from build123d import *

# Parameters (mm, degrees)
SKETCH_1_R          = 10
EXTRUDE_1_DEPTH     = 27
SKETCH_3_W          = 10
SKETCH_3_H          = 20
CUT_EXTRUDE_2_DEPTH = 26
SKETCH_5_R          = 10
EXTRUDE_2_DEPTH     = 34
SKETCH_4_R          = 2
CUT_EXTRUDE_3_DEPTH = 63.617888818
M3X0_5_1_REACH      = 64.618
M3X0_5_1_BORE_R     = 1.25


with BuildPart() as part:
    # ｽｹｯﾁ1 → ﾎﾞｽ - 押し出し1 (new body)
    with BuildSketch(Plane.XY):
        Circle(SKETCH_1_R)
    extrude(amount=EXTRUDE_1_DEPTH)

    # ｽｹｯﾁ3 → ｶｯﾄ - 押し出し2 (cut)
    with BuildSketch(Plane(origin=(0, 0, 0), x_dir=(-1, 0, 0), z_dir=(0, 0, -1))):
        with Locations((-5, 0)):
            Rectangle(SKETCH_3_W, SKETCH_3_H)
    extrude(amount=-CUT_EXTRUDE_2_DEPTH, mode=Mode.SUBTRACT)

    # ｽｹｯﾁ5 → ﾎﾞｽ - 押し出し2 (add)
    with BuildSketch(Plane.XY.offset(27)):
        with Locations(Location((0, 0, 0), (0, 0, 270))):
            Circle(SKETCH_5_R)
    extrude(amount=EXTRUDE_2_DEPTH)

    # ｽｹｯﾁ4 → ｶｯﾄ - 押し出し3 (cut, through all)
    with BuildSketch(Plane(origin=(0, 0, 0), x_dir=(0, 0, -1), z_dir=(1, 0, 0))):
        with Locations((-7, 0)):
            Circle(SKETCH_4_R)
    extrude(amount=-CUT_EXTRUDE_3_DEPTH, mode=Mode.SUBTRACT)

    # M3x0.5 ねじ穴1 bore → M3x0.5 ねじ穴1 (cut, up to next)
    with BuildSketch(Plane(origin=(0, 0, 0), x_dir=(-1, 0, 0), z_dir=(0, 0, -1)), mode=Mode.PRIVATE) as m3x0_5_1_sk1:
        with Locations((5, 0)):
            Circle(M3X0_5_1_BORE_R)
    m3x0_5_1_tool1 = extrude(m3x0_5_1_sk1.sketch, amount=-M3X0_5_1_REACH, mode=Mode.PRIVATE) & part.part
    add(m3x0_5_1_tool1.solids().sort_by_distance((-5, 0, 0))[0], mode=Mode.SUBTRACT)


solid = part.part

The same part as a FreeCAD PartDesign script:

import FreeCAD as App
import Part
import Sketcher
from FreeCAD import Vector
Q = App.Units.Quantity


def add_polygon(sketch, points):
    """Adds a closed chain of lines whose ends are joined by coincident constraints."""
    first, n = sketch.GeometryCount, len(points)
    for a, b in zip(points, points[1:] + points[:1]):
        sketch.addGeometry(Part.LineSegment(App.Vector(*a, 0), App.Vector(*b, 0)), False)
    for i in range(n):
        sketch.addConstraint(Sketcher.Constraint("Coincident", first + i, 2, first + (i + 1) % n, 1))

doc = App.newDocument("Part")
body = doc.addObject("PartDesign::Body", "Body")

sketch1 = body.newObject("Sketcher::SketchObject", "Sketch")
sketch1.AttachmentSupport = (doc.getObject("XY_Plane"), [""])
sketch1.MapMode = "FlatFace"
sketch1.addGeometry(Part.Circle(Vector(0, 0, 0), Vector(0, 0, 1), 10), False)
sketch1.addConstraint(Sketcher.Constraint("Coincident", 0, 3, -1, 1))
sketch1.addConstraint(Sketcher.Constraint("Diameter", 0, Q("20 mm")))
pad1 = body.newObject("PartDesign::Pad", "Pad")
pad1.Profile = sketch1
pad1.Length = 27

sketch2 = body.newObject("Sketcher::SketchObject", "Sketch001")
sketch2.AttachmentSupport = (doc.getObject("XY_Plane"), [""])
sketch2.MapMode = "FlatFace"
add_polygon(sketch2, [(10, 10), (10, -10), (0, -10), (0, 10)])
sketch2.addConstraint(Sketcher.Constraint("Vertical", 0))
sketch2.addConstraint(Sketcher.Constraint("Horizontal", 1))
sketch2.addConstraint(Sketcher.Constraint("Vertical", 2))
sketch2.addConstraint(Sketcher.Constraint("Horizontal", 3))
sketch2.addConstraint(Sketcher.Constraint("Symmetric", 1, 2, 2, 2, -1, 1))
sketch2.addConstraint(Sketcher.Constraint("DistanceX", 1, 2, 1, 1, Q("10 mm")))
sketch2.addConstraint(Sketcher.Constraint("DistanceY", 0, 2, 0, 1, Q("20 mm")))
pocket1 = body.newObject("PartDesign::Pocket", "Pocket")
pocket1.Profile = sketch2
pocket1.Length = 26
pocket1.Reversed = True

sketch3 = body.newObject("Sketcher::SketchObject", "Sketch002")
sketch3.AttachmentSupport = (doc.getObject("XY_Plane"), [""])
sketch3.MapMode = "FlatFace"
sketch3.AttachmentOffset = App.Placement(Vector(0, 0, 27), App.Rotation())
sketch3.addGeometry(Part.Circle(Vector(0, 0, 0), Vector(0, 0, 1), 10), False)
sketch3.addConstraint(Sketcher.Constraint("Coincident", 0, 3, -1, 1))
sketch3.addConstraint(Sketcher.Constraint("Diameter", 0, Q("20 mm")))
pad2 = body.newObject("PartDesign::Pad", "Pad001")
pad2.Profile = sketch3
pad2.Length = 34

sketch4 = body.newObject("Sketcher::SketchObject", "Sketch003")
sketch4.AttachmentSupport = (doc.getObject("YZ_Plane"), [""])
sketch4.MapMode = "FlatFace"
sketch4.addGeometry(Part.Circle(Vector(0, 7, 0), Vector(0, 0, 1), 2), False)
sketch4.addConstraint(Sketcher.Constraint("PointOnObject", 0, 3, -2))
sketch4.addConstraint(Sketcher.Constraint("Diameter", 0, Q("4 mm")))
sketch4.addConstraint(Sketcher.Constraint("DistanceY", -1, 1, 0, 3, Q("7 mm")))
pocket2 = body.newObject("PartDesign::Pocket", "Pocket001")
pocket2.Profile = sketch4
pocket2.Type = "ThroughAll"

sketch5 = body.newObject("Sketcher::SketchObject", "Sketch004")
sketch5.AttachmentSupport = (doc.getObject("XY_Plane"), [""])
sketch5.MapMode = "FlatFace"
sketch5.addGeometry(Part.Circle(Vector(-5, 0, 0), Vector(0, 0, 1), 1.2), False)
sketch5.addConstraint(Sketcher.Constraint("PointOnObject", 0, 3, -1))
sketch5.addConstraint(Sketcher.Constraint("Diameter", 0, Q("2.5 mm")))
sketch5.addConstraint(Sketcher.Constraint("DistanceX", 0, 3, -1, 1, Q("5 mm")))
pocket3 = body.newObject("PartDesign::Pocket", "Pocket002")
pocket3.Profile = sketch5
pocket3.Type = "UpToFirst"
pocket3.Reversed = True

doc.recompute()
